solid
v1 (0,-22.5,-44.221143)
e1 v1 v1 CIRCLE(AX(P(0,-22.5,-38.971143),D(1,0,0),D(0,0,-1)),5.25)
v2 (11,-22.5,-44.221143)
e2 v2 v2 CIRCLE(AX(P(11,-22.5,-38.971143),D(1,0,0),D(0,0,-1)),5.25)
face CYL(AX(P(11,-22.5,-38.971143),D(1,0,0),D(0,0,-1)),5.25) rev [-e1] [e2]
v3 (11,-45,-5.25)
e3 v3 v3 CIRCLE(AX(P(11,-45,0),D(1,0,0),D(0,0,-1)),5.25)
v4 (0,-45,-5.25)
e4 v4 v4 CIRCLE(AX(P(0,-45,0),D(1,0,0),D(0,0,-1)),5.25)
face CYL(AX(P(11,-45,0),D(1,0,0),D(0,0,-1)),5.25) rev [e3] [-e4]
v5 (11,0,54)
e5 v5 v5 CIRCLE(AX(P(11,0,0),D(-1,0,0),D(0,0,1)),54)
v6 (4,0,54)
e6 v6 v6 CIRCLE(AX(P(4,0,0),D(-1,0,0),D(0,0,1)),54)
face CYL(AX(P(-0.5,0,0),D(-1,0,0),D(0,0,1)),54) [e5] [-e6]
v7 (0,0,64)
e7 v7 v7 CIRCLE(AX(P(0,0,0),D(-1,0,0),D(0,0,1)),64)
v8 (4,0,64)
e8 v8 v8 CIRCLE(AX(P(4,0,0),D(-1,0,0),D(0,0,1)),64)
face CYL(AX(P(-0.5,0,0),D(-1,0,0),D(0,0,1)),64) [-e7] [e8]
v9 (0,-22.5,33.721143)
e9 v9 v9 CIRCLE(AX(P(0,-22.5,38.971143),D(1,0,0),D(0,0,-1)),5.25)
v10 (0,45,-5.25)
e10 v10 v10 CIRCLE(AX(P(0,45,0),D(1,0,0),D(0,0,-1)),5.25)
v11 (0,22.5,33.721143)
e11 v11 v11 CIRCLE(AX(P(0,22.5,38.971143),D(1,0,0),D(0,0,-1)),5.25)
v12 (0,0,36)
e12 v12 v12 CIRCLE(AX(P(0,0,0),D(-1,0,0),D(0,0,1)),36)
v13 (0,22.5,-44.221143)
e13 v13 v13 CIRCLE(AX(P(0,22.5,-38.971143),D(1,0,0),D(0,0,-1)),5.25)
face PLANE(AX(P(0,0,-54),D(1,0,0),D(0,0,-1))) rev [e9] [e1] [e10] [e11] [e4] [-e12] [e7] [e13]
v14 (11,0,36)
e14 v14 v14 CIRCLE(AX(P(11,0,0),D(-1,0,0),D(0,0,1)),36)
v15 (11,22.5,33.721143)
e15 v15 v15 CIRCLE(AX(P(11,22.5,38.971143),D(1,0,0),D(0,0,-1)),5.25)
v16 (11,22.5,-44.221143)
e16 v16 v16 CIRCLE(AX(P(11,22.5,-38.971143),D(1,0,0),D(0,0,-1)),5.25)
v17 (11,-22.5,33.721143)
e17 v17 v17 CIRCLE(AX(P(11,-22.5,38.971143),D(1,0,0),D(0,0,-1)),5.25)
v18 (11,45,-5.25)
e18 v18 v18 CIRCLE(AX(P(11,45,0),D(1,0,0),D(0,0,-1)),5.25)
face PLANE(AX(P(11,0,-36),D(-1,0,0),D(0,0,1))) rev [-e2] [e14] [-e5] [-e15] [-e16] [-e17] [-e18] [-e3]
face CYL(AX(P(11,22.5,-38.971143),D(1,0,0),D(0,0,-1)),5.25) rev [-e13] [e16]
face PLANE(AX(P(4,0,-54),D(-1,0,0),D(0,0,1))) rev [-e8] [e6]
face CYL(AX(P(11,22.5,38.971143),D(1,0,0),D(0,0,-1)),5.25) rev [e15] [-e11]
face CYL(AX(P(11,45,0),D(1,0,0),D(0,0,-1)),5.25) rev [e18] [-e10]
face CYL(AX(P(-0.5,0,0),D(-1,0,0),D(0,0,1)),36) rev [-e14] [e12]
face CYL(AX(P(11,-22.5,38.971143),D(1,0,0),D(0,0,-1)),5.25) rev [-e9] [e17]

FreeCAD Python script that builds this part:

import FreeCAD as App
import Part
import Sketcher

V = App.Vector
Q = App.Units.Quantity


def add_polygon(sketch, points):
    """Adds a closed chain of lines whose ends are joined by coincident constraints."""
    first, n = sketch.GeometryCount, len(points)
    for a, b in zip(points, points[1:] + points[:1]):
        sketch.addGeometry(Part.LineSegment(App.Vector(*a, 0), App.Vector(*b, 0)), False)
    for i in range(n):
        sketch.addConstraint(Sketcher.Constraint("Coincident", first + i, 2, first + (i + 1) % n, 1))

doc = App.newDocument("Part")
body = doc.addObject("PartDesign::Body", "Body")

# Sketch on XZ plane
sketch1 = doc.addObject("Sketcher::SketchObject", "Sketch")
body.addObject(sketch1)
sketch1.AttachmentSupport = (doc.XZ_Plane, [""])
sketch1.MapMode = "FlatFace"
add_polygon(sketch1, [(0, -36), (11, -36), (11, -54), (4, -54), (4, -64), (0, -64)])  # lines 0-5
sketch1.addConstraint(Sketcher.Constraint("Horizontal", 0))
sketch1.addConstraint(Sketcher.Constraint("Vertical", 1))
sketch1.addConstraint(Sketcher.Constraint("Horizontal", 2))
sketch1.addConstraint(Sketcher.Constraint("Vertical", 3))
sketch1.addConstraint(Sketcher.Constraint("Horizontal", 4))
sketch1.addConstraint(Sketcher.Constraint("Vertical", 5))
sketch1.addConstraint(Sketcher.Constraint("PointOnObject", 4, 2, -2))
sketch1.addConstraint(Sketcher.Constraint("DistanceX", 0, 1, 0, 2, Q("11 mm")))
sketch1.addConstraint(Sketcher.Constraint("DistanceX", 2, 2, 2, 1, Q("7 mm")))
sketch1.addConstraint(Sketcher.Constraint("DistanceY", 1, 2, 1, 1, Q("18 mm")))
sketch1.addConstraint(Sketcher.Constraint("DistanceY", 3, 2, 3, 1, Q("10 mm")))
sketch1.addConstraint(Sketcher.Constraint("DistanceY", 0, 2, -1, 1, Q("36 mm")))
revolution = doc.addObject("PartDesign::Revolution", "Revolution")
body.addObject(revolution)
revolution.Profile = sketch1
revolution.ReferenceAxis = (sketch1, ["H_Axis"])
revolution.Angle = 360

# Sketch on YZ plane
sketch2 = doc.addObject("Sketcher::SketchObject", "Sketch001")
body.addObject(sketch2)
sketch2.AttachmentSupport = (doc.YZ_Plane, [""])
sketch2.MapMode = "FlatFace"
sketch2.AttachmentOffset = App.Placement(V(0, 0, 11), App.Rotation())
sketch2.addGeometry(Part.Circle(V(22.5, 38.971143, 0), V(0, 0, 1), 5.25), False)
sketch2.addGeometry(Part.Circle(V(45, 0, 0), V(0, 0, 1), 5.25), False)
sketch2.addGeometry(Part.Circle(V(22.5, -38.971143, 0), V(0, 0, 1), 5.25), False)
sketch2.addGeometry(Part.Circle(V(-22.5, -38.971143, 0), V(0, 0, 1), 5.25), False)
sketch2.addGeometry(Part.Circle(V(-45, 0, 0), V(0, 0, 1), 5.25), False)
sketch2.addGeometry(Part.Circle(V(-22.5, 38.971143, 0), V(0, 0, 1), 5.25), False)
sketch2.addConstraint(Sketcher.Constraint("Equal", 0, 1))
sketch2.addConstraint(Sketcher.Constraint("Equal", 1, 2))
sketch2.addConstraint(Sketcher.Constraint("Equal", 2, 3))
sketch2.addConstraint(Sketcher.Constraint("Equal", 3, 4))
sketch2.addConstraint(Sketcher.Constraint("Equal", 4, 5))
sketch2.addConstraint(Sketcher.Constraint("Symmetric", 0, 3, 3, 3, -1, 1))
sketch2.addConstraint(Sketcher.Constraint("Symmetric", 1, 3, 4, 3, -1, 1))
sketch2.addConstraint(Sketcher.Constraint("Symmetric", 2, 3, 5, 3, -1, 1))
sketch2.addConstraint(Sketcher.Constraint("Symmetric", 2, 3, 3, 3, -2))
sketch2.addConstraint(Sketcher.Constraint("PointOnObject", 1, 3, -1))
sketch2.addConstraint(Sketcher.Constraint("Diameter", 0, Q("10.5 mm")))
sketch2.addConstraint(Sketcher.Constraint("DistanceX", -1, 1, 1, 3, Q("45 mm")))
sketch2.addConstraint(Sketcher.Constraint("DistanceX", 3, 3, 2, 3, Q("45 mm")))
sketch2.addConstraint(Sketcher.Constraint("DistanceY", -1, 1, 0, 3, Q("38.971143 mm")))
doc.recompute()
hole = doc.addObject("PartDesign::Hole", "Hole")
body.addObject(hole)
hole.Profile = sketch2
hole.ThreadType = "None"
hole.Diameter = 10.5
hole.DepthType = "ThroughAll"

doc.recompute()
